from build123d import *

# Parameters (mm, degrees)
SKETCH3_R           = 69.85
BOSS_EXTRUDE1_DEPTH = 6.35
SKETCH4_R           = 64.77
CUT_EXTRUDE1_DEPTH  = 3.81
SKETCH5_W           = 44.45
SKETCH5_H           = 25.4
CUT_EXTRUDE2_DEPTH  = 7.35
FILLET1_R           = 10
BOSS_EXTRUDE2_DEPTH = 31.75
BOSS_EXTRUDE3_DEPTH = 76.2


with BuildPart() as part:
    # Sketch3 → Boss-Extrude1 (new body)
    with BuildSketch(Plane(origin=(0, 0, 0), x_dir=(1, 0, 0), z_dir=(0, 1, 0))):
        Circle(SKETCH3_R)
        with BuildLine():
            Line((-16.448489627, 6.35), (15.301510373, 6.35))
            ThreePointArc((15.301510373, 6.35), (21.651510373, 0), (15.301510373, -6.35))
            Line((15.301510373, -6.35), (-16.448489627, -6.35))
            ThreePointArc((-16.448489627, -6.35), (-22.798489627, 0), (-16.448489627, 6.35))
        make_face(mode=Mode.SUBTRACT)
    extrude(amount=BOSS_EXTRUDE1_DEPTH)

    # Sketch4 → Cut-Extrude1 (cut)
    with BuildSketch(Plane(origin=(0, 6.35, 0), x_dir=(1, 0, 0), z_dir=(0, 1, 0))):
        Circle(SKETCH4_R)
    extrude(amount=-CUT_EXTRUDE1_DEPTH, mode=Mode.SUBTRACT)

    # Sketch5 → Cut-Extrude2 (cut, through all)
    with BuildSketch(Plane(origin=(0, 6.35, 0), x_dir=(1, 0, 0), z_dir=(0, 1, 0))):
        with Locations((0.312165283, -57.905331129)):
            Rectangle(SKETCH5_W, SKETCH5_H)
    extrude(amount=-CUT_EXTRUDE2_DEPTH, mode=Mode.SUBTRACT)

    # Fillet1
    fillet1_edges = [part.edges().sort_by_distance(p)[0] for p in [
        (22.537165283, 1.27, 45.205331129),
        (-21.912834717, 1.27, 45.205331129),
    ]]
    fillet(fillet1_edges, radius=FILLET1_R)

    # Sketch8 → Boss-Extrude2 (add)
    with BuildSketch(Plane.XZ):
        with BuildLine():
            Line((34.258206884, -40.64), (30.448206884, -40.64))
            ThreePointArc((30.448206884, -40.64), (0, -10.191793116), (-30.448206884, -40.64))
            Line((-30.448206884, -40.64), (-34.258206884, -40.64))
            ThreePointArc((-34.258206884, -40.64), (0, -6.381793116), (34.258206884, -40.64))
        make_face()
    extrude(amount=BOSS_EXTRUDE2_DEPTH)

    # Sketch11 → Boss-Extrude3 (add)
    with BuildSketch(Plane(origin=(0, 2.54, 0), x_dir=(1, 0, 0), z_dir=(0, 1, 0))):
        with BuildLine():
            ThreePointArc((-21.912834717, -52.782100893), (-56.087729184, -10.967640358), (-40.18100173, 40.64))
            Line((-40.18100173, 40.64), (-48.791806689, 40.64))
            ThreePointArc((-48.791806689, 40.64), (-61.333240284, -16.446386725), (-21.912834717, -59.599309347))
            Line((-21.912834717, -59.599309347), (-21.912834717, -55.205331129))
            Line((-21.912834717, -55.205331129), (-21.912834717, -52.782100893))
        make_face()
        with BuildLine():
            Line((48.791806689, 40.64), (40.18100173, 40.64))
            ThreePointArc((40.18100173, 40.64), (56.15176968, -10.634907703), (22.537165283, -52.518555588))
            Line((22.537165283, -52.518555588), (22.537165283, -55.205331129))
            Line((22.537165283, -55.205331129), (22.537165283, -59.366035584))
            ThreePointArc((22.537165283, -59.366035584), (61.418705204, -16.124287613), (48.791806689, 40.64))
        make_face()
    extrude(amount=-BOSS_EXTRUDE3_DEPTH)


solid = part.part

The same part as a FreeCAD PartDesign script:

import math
import FreeCAD as App
import Part
import Sketcher

V = App.Vector
Q = App.Units.Quantity


def edges_at(feature, points):
    """Names of the edges that pass closest to the given points."""
    edges = feature.Shape.Edges
    near = lambda p: min(range(len(edges)), key=lambda i: edges[i].distToShape(Part.Vertex(*p))[0])
    return sorted({f"Edge{near(p) + 1}" for p in points})

doc = App.newDocument("Part")
body = doc.addObject("PartDesign::Body", "Body")

sketch1 = body.newObject("Sketcher::SketchObject", "Sketch")
sketch1.AttachmentSupport = (doc.getObject("XZ_Plane"), [""])
sketch1.MapMode = "FlatFace"
sketch1.addGeometry([
    Part.Circle(V(0, 0, 0), V(0, 0, 1), 70),
    Part.ArcOfCircle(Part.Circle(V(-16, 0, 0), V(0, 0, 1), 6), math.radians(90), math.radians(270)),
    Part.LineSegment(V(-16, -6, 0), V(15, -6, 0)),
    Part.ArcOfCircle(Part.Circle(V(15, 0, 0), V(0, 0, 1), 6), math.radians(-90), math.radians(90)),
    Part.LineSegment(V(15, 6, 0), V(-16, 6, 0)),
], False)
sketch1.addConstraint([
    Sketcher.Constraint("Tangent", 1, 2, 2, 1),
    Sketcher.Constraint("Tangent", 2, 2, 3, 1),
    Sketcher.Constraint("Tangent", 3, 2, 4, 1),
    Sketcher.Constraint("Tangent", 4, 2, 1, 1),
    Sketcher.Constraint("Horizontal", 2),
    Sketcher.Constraint("Horizontal", 4),
    Sketcher.Constraint("Coincident", 0, 3, -1, 1),
    Sketcher.Constraint("PointOnObject", 1, 3, -1),
    Sketcher.Constraint("Diameter", 0, Q("5.5 in")),
    Sketcher.Constraint("Radius", 1, Q("0.25 in")),
    Sketcher.Constraint("DistanceX", 2, 1, 2, 2, Q("1.25 in")),
    Sketcher.Constraint("DistanceX", 1, 3, -1, 1, Q("16.44849 mm")),
])
pad1 = body.newObject("PartDesign::Pad", "Pad")
pad1.Profile = sketch1
pad1.Length = Q("0.25 in")
pad1.Reversed = True

sketch2 = body.newObject("Sketcher::SketchObject", "Sketch001")
sketch2.AttachmentSupport = (doc.getObject("XZ_Plane"), [""])
sketch2.MapMode = "FlatFace"
sketch2.AttachmentOffset = App.Placement(V(0, 0, -0.25 * 25.4), App.Rotation())
sketch2.addGeometry(Part.Circle(V(0, 0, 0), V(0, 0, 1), 65), False)
sketch2.addConstraint([
    Sketcher.Constraint("Coincident", 0, 3, -1, 1),
    Sketcher.Constraint("Diameter", 0, Q("5.1 in")),
])
pocket1 = body.newObject("PartDesign::Pocket", "Pocket")
pocket1.Profile = sketch2
pocket1.Length = Q("0.15 in")
pocket1.Reversed = True

sketch3 = body.newObject("Sketcher::SketchObject", "Sketch002")
sketch3.AttachmentSupport = (doc.getObject("XZ_Plane"), [""])
sketch3.MapMode = "FlatFace"
sketch3.AttachmentOffset = App.Placement(V(0, 0, -0.25 * 25.4), App.Rotation())
sketch3.addGeometry([
    Part.LineSegment(V(-22, 45, 0), V(-22, 71, 0)),
    Part.LineSegment(V(-22, 71, 0), V(23, 71, 0)),
    Part.LineSegment(V(23, 71, 0), V(23, 45, 0)),
    Part.LineSegment(V(23, 45, 0), V(-22, 45, 0)),
], False)
sketch3.addConstraint([
    Sketcher.Constraint("Coincident", 0, 2, 1, 1),
    Sketcher.Constraint("Coincident", 1, 2, 2, 1),
    Sketcher.Constraint("Coincident", 2, 2, 3, 1),
    Sketcher.Constraint("Coincident", 3, 2, 0, 1),
    Sketcher.Constraint("Vertical", 0),
    Sketcher.Constraint("Horizontal", 1),
    Sketcher.Constraint("Vertical", 2),
    Sketcher.Constraint("Horizontal", 3),
    Sketcher.Constraint("DistanceY", 0, 1, 0, 2, Q("1 in")),
    Sketcher.Constraint("DistanceX", 1, 1, 1, 2, Q("1.75 in")),
    Sketcher.Constraint("DistanceY", -1, 1, 0, 2, Q("70.605331 mm")),
    Sketcher.Constraint("DistanceX", 0, 2, -1, 1, Q("21.912835 mm")),
])
pocket2 = body.newObject("PartDesign::Pocket", "Pocket001")
pocket2.Profile = sketch3
pocket2.Type = "ThroughAll"
pocket2.Reversed = True
doc.recompute()

fillet = body.newObject("PartDesign::Fillet", "Fillet")
fillet.Base = (pocket2, edges_at(pocket2, [(22.537, 1.27, 45.205), (-21.913, 1.27, 45.205)]))
fillet.Radius = 10

sketch4 = body.newObject("Sketcher::SketchObject", "Sketch003")
sketch4.AttachmentSupport = (doc.getObject("XZ_Plane"), [""])
sketch4.MapMode = "FlatFace"
sketch4.addGeometry([
    Part.LineSegment(V(30.4, -40.6, 0), V(34.3, -40.6, 0)),
    Part.ArcOfCircle(Part.Circle(V(0, -40.6, 0), V(0, 0, 1), 34.3), math.radians(0), math.radians(180)),
    Part.LineSegment(V(-34.3, -40.6, 0), V(-30.4, -40.6, 0)),
    Part.ArcOfCircle(Part.Circle(V(0, -40.6, 0), V(0, 0, 1), 30.4), math.radians(0), math.radians(180)),
], False)
sketch4.addConstraint([
    Sketcher.Constraint("Coincident", 0, 2, 1, 1),
    Sketcher.Constraint("Coincident", 1, 2, 2, 1),
    Sketcher.Constraint("Coincident", 2, 2, 3, 2),
    Sketcher.Constraint("Coincident", 3, 1, 0, 1),
    Sketcher.Constraint("Horizontal", 0),
    Sketcher.Constraint("Horizontal", 2),
    Sketcher.Constraint("Coincident", 3, 3, 1, 3),
    Sketcher.Constraint("Symmetric", 0, 2, 1, 2, -2),
    Sketcher.Constraint("Horizontal", 3, 3, 0, 2),
    Sketcher.Constraint("DistanceX", 0, 1, 0, 2, Q("0.15 in")),
    Sketcher.Constraint("DistanceY", 1, 3, -1, 1, Q("1.6 in")),
    Sketcher.Constraint("Radius", 1, Q("34.258207 mm")),
])
pad2 = body.newObject("PartDesign::Pad", "Pad001")
pad2.Profile = sketch4
pad2.Length = Q("1.25 in")

sketch5 = body.newObject("Sketcher::SketchObject", "Sketch004")
sketch5.AttachmentSupport = (doc.getObject("XZ_Plane"), [""])
sketch5.MapMode = "FlatFace"
sketch5.AttachmentOffset = App.Placement(V(0, 0, -0.1 * 25.4), App.Rotation())
sketch5.addGeometry([
    Part.ArcOfCircle(Part.Circle(V(0, 0, 0), V(0, 0, 1), 57), math.radians(113), math.radians(225)),
    Part.LineSegment(V(-40, -41, 0), V(-49, -41, 0)),
    Part.ArcOfCircle(Part.Circle(V(0, 0, 0), V(0, 0, 1), 63), math.radians(110), math.radians(220)),
    Part.LineSegment(V(-22, 60, 0), V(-22, 53, 0)),
    Part.LineSegment(V(49, -41, 0), V(40, -41, 0)),
    Part.ArcOfCircle(Part.Circle(V(0, 0, 0), V(0, 0, 1), 57), math.radians(-45), math.radians(67)),
    Part.LineSegment(V(23, 53, 0), V(23, 59, 0)),
    Part.ArcOfCircle(Part.Circle(V(0, 0, 0), V(0, 0, 1), 64), math.radians(-40), math.radians(69)),
], False)
sketch5.addConstraint([
    Sketcher.Constraint("Coincident", 0, 2, 1, 1),
    Sketcher.Constraint("Coincident", 1, 2, 2, 2),
    Sketcher.Constraint("Coincident", 2, 1, 3, 1),
    Sketcher.Constraint("Coincident", 3, 2, 0, 1),
    Sketcher.Constraint("Coincident", 4, 2, 5, 1),
    Sketcher.Constraint("Coincident", 5, 2, 6, 1),
    Sketcher.Constraint("Coincident", 6, 2, 7, 2),
    Sketcher.Constraint("Coincident", 7, 1, 4, 1),
    Sketcher.Constraint("Horizontal", 1),
    Sketcher.Constraint("Vertical", 3),
    Sketcher.Constraint("Horizontal", 4),
    Sketcher.Constraint("Vertical", 6),
    Sketcher.Constraint("Coincident", 0, 3, -1, 1),
    Sketcher.Constraint("Coincident", 2, 3, -1, 1),
    Sketcher.Constraint("Coincident", 5, 3, -1, 1),
    Sketcher.Constraint("Coincident", 7, 3, -1, 1),
    Sketcher.Constraint("Equal", 0, 5),
    Sketcher.Constraint("Equal", 2, 7),
    Sketcher.Constraint("Horizontal", 1, 2, 4, 2),
    Sketcher.Constraint("Radius", 2, Q("2.5 in")),
    Sketcher.Constraint("Radius", 0, Q("2.25 in")),
    Sketcher.Constraint("DistanceY", 0, 2, -1, 1, Q("1.6 in")),
    Sketcher.Constraint("DistanceX", 3, 2, 5, 2, Q("1.75 in")),
    Sketcher.Constraint("DistanceY", 3, 2, 3, 1, Q("6.817208 mm")),
])
pad3 = body.newObject("PartDesign::Pad", "Pad002")
pad3.Profile = sketch5
pad3.Length = Q("3 in")

doc.recompute()
